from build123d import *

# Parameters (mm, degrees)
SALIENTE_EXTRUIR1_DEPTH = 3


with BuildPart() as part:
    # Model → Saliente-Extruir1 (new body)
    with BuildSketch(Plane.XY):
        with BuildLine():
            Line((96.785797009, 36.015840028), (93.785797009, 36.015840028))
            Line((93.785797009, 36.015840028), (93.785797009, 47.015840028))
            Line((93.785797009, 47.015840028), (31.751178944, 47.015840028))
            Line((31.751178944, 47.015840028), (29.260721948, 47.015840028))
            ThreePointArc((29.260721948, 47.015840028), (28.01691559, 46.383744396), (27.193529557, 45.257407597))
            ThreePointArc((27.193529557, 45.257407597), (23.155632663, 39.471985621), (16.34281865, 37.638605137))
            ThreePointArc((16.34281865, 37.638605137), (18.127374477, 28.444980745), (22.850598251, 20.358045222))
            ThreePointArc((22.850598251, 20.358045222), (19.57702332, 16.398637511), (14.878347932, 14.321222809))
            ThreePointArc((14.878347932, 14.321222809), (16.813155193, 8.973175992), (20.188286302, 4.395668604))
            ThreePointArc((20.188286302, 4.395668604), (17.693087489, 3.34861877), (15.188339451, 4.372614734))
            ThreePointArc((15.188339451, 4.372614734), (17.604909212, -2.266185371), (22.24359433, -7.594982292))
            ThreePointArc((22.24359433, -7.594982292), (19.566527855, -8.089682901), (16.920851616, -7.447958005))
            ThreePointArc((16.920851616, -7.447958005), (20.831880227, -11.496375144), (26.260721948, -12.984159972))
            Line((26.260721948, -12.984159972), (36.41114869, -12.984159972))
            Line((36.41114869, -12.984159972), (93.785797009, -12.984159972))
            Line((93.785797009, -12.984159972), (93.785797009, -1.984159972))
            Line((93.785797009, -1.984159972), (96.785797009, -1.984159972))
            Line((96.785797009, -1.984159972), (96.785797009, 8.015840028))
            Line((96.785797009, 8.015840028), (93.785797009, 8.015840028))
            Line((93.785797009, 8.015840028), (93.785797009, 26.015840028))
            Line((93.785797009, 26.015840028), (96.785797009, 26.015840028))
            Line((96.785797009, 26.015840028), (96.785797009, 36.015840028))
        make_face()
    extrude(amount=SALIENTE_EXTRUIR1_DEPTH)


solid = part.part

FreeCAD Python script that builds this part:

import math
import FreeCAD as App
import Part
import Sketcher
Q = App.Units.Quantity

doc = App.newDocument("Part")
body = doc.addObject("PartDesign::Body", "Body")

# Sketch on XY plane
sketch1 = doc.addObject("Sketcher::SketchObject", "Sketch")
body.addObject(sketch1)
sketch1.AttachmentSupport = (doc.XY_Plane, [""])
sketch1.MapMode = "FlatFace"
sketch1.addGeometry(Part.LineSegment(App.Vector(96.8, 36, 0), App.Vector(93.8, 36, 0)), False)
sketch1.addGeometry(Part.LineSegment(App.Vector(93.8, 36, 0), App.Vector(93.8, 47, 0)), False)
sketch1.addGeometry(Part.LineSegment(App.Vector(93.8, 47, 0), App.Vector(29.3, 47, 0)), False)
sketch1.addGeometry(Part.ArcOfCircle(Part.Circle(App.Vector(30, 44.1, 0), App.Vector(0, 0, 1), 3), math.radians(103), math.radians(157)), False)
sketch1.addGeometry(Part.ArcOfCircle(Part.Circle(App.Vector(17.2, 47.9, 0), App.Vector(0, 0, 1), 10.3), math.radians(-95), math.radians(-15)), False)
sketch1.addGeometry(Part.ArcOfCircle(Part.Circle(App.Vector(44.3, 38.3, 0), App.Vector(0, 0, 1), 27.9), math.radians(-179), math.radians(-140)), False)
sketch1.addGeometry(Part.ArcOfCircle(Part.Circle(App.Vector(12.8, 25.3, 0), App.Vector(0, 0, 1), 11.2), math.radians(-79), math.radians(-26)), False)
sketch1.addGeometry(Part.ArcOfCircle(Part.Circle(App.Vector(34.3, 18.3, 0), App.Vector(0, 0, 1), 19.8), math.radians(-168), math.radians(-135)), False)
sketch1.addGeometry(Part.ArcOfCircle(Part.Circle(App.Vector(17.7, 6.9, 0), App.Vector(0, 0, 1), 3.5), math.radians(-135), math.radians(-45)), False)
sketch1.addGeometry(Part.ArcOfCircle(Part.Circle(App.Vector(34.3, 7.6, 0), App.Vector(0, 0, 1), 19.3), math.radians(-171), math.radians(-128)), False)
sketch1.addGeometry(Part.ArcOfCircle(Part.Circle(App.Vector(19.7, -1.6, 0), App.Vector(0, 0, 1), 6.5), math.radians(-116), math.radians(-67)), False)
sketch1.addGeometry(Part.ArcOfCircle(Part.Circle(App.Vector(26.3, -2.3, 0), App.Vector(0, 0, 1), 10.6), math.radians(-151), math.radians(-90)), False)
sketch1.addGeometry(Part.LineSegment(App.Vector(26.3, -13, 0), App.Vector(93.8, -13, 0)), False)
sketch1.addGeometry(Part.LineSegment(App.Vector(93.8, -13, 0), App.Vector(93.8, -2, 0)), False)
sketch1.addGeometry(Part.LineSegment(App.Vector(93.8, -2, 0), App.Vector(96.8, -2, 0)), False)
sketch1.addGeometry(Part.LineSegment(App.Vector(96.8, -2, 0), App.Vector(96.8, 8, 0)), False)
sketch1.addGeometry(Part.LineSegment(App.Vector(96.8, 8, 0), App.Vector(93.8, 8, 0)), False)
sketch1.addGeometry(Part.LineSegment(App.Vector(93.8, 8, 0), App.Vector(93.8, 26, 0)), False)
sketch1.addGeometry(Part.LineSegment(App.Vector(93.8, 26, 0), App.Vector(96.8, 26, 0)), False)
sketch1.addGeometry(Part.LineSegment(App.Vector(96.8, 26, 0), App.Vector(96.8, 36, 0)), False)
sketch1.addConstraint(Sketcher.Constraint("Coincident", 0, 2, 1, 1))
sketch1.addConstraint(Sketcher.Constraint("Coincident", 1, 2, 2, 1))
sketch1.addConstraint(Sketcher.Constraint("Coincident", 2, 2, 3, 1))
sketch1.addConstraint(Sketcher.Constraint("Coincident", 3, 2, 4, 2))
sketch1.addConstraint(Sketcher.Constraint("Coincident", 4, 1, 5, 1))
sketch1.addConstraint(Sketcher.Constraint("Coincident", 5, 2, 6, 2))
sketch1.addConstraint(Sketcher.Constraint("Coincident", 6, 1, 7, 1))
sketch1.addConstraint(Sketcher.Constraint("Coincident", 7, 2, 8, 2))
sketch1.addConstraint(Sketcher.Constraint("Coincident", 8, 1, 9, 1))
sketch1.addConstraint(Sketcher.Constraint("Coincident", 9, 2, 10, 2))
sketch1.addConstraint(Sketcher.Constraint("Coincident", 10, 1, 11, 1))
sketch1.addConstraint(Sketcher.Constraint("Coincident", 11, 2, 12, 1))
sketch1.addConstraint(Sketcher.Constraint("Coincident", 12, 2, 13, 1))
sketch1.addConstraint(Sketcher.Constraint("Coincident", 13, 2, 14, 1))
sketch1.addConstraint(Sketcher.Constraint("Coincident", 14, 2, 15, 1))
sketch1.addConstraint(Sketcher.Constraint("Coincident", 15, 2, 16, 1))
sketch1.addConstraint(Sketcher.Constraint("Coincident", 16, 2, 17, 1))
sketch1.addConstraint(Sketcher.Constraint("Coincident", 17, 2, 18, 1))
sketch1.addConstraint(Sketcher.Constraint("Coincident", 18, 2, 19, 1))
sketch1.addConstraint(Sketcher.Constraint("Coincident", 19, 2, 0, 1))
sketch1.addConstraint(Sketcher.Constraint("Horizontal", 0))
sketch1.addConstraint(Sketcher.Constraint("Vertical", 1))
sketch1.addConstraint(Sketcher.Constraint("Horizontal", 2))
sketch1.addConstraint(Sketcher.Constraint("Horizontal", 12))
sketch1.addConstraint(Sketcher.Constraint("Vertical", 13))
sketch1.addConstraint(Sketcher.Constraint("Horizontal", 14))
sketch1.addConstraint(Sketcher.Constraint("Vertical", 15))
sketch1.addConstraint(Sketcher.Constraint("Horizontal", 16))
sketch1.addConstraint(Sketcher.Constraint("Vertical", 17))
sketch1.addConstraint(Sketcher.Constraint("Horizontal", 18))
sketch1.addConstraint(Sketcher.Constraint("Vertical", 19))
sketch1.addConstraint(Sketcher.Constraint("Vertical", 1, 2, 12, 2))
sketch1.addConstraint(Sketcher.Constraint("Vertical", 13, 2, 16, 2))
sketch1.addConstraint(Sketcher.Constraint("Vertical", 15, 2, 18, 2))
sketch1.addConstraint(Sketcher.Constraint("Equal", 1, 13))
sketch1.addConstraint(Sketcher.Constraint("Equal", 15, 19))
sketch1.addConstraint(Sketcher.Constraint("Radius", 3, Q("3 mm")))
sketch1.addConstraint(Sketcher.Constraint("DistanceX", 0, 2, 0, 1, Q("3 mm")))
sketch1.addConstraint(Sketcher.Constraint("DistanceY", 1, 1, 1, 2, Q("11 mm")))
sketch1.addConstraint(Sketcher.Constraint("DistanceY", 15, 1, 15, 2, Q("10 mm")))
sketch1.addConstraint(Sketcher.Constraint("DistanceY", 17, 1, 17, 2, Q("18 mm")))
sketch1.addConstraint(Sketcher.Constraint("Radius", 6, Q("11.18034 mm")))
sketch1.addConstraint(Sketcher.Constraint("Radius", 7, Q("19.801309 mm")))
sketch1.addConstraint(Sketcher.Constraint("Radius", 4, Q("10.307764 mm")))
sketch1.addConstraint(Sketcher.Constraint("Radius", 5, Q("27.930966 mm")))
sketch1.addConstraint(Sketcher.Constraint("Radius", 8, Q("3.535534 mm")))
sketch1.addConstraint(Sketcher.Constraint("Radius", 9, Q("19.349935 mm")))
sketch1.addConstraint(Sketcher.Constraint("Radius", 10, Q("6.519202 mm")))
sketch1.addConstraint(Sketcher.Constraint("Radius", 11, Q("10.644704 mm")))
sketch1.addConstraint(Sketcher.Constraint("DistanceY", 9, 3, 3, 3, Q("36.537998 mm")))
sketch1.addConstraint(Sketcher.Constraint("DistanceX", -1, 1, 5, 2, Q("22.850598 mm")))
sketch1.addConstraint(Sketcher.Constraint("DistanceY", 8, 3, 4, 3, Q("41.023799 mm")))
sketch1.addConstraint(Sketcher.Constraint("DistanceY", 9, 3, 5, 3, Q("30.728102 mm")))
sketch1.addConstraint(Sketcher.Constraint("DistanceX", 8, 3, 7, 2, Q("2.5115 mm")))
sketch1.addConstraint(Sketcher.Constraint("DistanceY", 8, 1, 8, 3, Q("2.5115 mm")))
sketch1.addConstraint(Sketcher.Constraint("DistanceX", 8, 1, 11, 3, Q("11.071299 mm")))
sketch1.addConstraint(Sketcher.Constraint("DistanceY", 11, 2, 10, 1, Q("5.536202 mm")))
sketch1.addConstraint(Sketcher.Constraint("DistanceX", 2, 2, 2, 1, Q("64.525075 mm")))
sketch1.addConstraint(Sketcher.Constraint("DistanceX", 12, 1, 12, 2, Q("67.525075 mm")))
sketch1.addConstraint(Sketcher.Constraint("DistanceY", -1, 1, 5, 3, Q("38.288749 mm")))
sketch1.addConstraint(Sketcher.Constraint("DistanceX", -1, 1, 6, 3, Q("12.827651 mm")))
sketch1.addConstraint(Sketcher.Constraint("DistanceX", -1, 1, 7, 3, Q("34.272971 mm")))
sketch1.addConstraint(Sketcher.Constraint("DistanceX", -1, 1, 10, 3, Q("19.746532 mm")))
sketch1.addConstraint(Sketcher.Constraint("DistanceX", -1, 1, 11, 3, Q("26.259638 mm")))
sketch1.addConstraint(Sketcher.Constraint("DistanceY", -1, 1, 0, 2, Q("36.01584 mm")))
sketch1.addConstraint(Sketcher.Constraint("DistanceX", -1, 1, 2, 2, Q("29.260722 mm")))
sketch1.addConstraint(Sketcher.Constraint("DistanceX", -1, 1, 3, 2, Q("27.19353 mm")))
sketch1.addConstraint(Sketcher.Constraint("DistanceX", -1, 1, 4, 1, Q("16.342819 mm")))
sketch1.addConstraint(Sketcher.Constraint("DistanceY", -1, 1, 7, 2, Q("4.395669 mm")))
pad1 = doc.addObject("PartDesign::Pad", "Pad")
body.addObject(pad1)
pad1.Profile = sketch1
pad1.Length = 3

doc.recompute()
